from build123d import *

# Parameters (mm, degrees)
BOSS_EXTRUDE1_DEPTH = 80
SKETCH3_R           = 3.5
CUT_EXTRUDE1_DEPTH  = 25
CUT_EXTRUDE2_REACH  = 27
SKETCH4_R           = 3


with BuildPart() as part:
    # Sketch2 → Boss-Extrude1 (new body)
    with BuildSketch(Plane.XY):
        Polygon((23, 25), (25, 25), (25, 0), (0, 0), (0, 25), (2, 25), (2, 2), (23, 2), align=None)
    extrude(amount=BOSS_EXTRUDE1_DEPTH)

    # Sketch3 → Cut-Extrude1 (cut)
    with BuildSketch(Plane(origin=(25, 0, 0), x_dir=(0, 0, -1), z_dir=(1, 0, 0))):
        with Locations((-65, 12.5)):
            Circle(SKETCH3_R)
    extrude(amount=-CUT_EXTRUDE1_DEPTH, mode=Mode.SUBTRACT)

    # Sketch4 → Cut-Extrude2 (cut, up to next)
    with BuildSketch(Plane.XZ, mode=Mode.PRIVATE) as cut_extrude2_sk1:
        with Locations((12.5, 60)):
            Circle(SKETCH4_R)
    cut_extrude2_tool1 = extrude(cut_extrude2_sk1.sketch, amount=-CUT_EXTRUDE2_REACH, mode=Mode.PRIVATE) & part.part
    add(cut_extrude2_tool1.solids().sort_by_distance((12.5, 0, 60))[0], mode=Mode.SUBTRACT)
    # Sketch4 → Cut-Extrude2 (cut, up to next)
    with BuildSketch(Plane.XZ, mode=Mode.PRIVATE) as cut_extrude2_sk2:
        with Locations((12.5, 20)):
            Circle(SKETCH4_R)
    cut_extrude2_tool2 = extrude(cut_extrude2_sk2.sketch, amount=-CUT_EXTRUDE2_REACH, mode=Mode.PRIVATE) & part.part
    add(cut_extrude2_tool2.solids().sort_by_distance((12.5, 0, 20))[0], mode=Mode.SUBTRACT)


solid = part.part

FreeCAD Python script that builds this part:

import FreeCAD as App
import Part
import Sketcher

V = App.Vector
Q = App.Units.Quantity


def add_polygon(sketch, points):
    """Adds a closed chain of lines whose ends are joined by coincident constraints."""
    first, n = sketch.GeometryCount, len(points)
    for a, b in zip(points, points[1:] + points[:1]):
        sketch.addGeometry(Part.LineSegment(App.Vector(*a, 0), App.Vector(*b, 0)), False)
    for i in range(n):
        sketch.addConstraint(Sketcher.Constraint("Coincident", first + i, 2, first + (i + 1) % n, 1))

doc = App.newDocument("Part")
body = doc.addObject("PartDesign::Body", "Body")

# Sketch on XY plane
sketch1 = doc.addObject("Sketcher::SketchObject", "Sketch")
body.addObject(sketch1)
sketch1.AttachmentSupport = (doc.XY_Plane, [""])
sketch1.MapMode = "FlatFace"
add_polygon(sketch1, [(25, 25), (23, 25), (23, 2), (2, 2), (2, 25), (0, 25), (0, 0), (25, 0)])  # lines 0-7
sketch1.addConstraint([
    Sketcher.Constraint("Horizontal", 0),
    Sketcher.Constraint("Vertical", 1),
    Sketcher.Constraint("Horizontal", 2),
    Sketcher.Constraint("Vertical", 3),
    Sketcher.Constraint("Horizontal", 4),
    Sketcher.Constraint("Vertical", 5),
    Sketcher.Constraint("Horizontal", 6),
    Sketcher.Constraint("Vertical", 7),
    Sketcher.Constraint("Coincident", 5, 2, -1, 1),
    Sketcher.Constraint("Horizontal", 0, 2, 3, 2),
    Sketcher.Constraint("Equal", 0, 4),
    Sketcher.Constraint("Equal", 6, 5),
    Sketcher.Constraint("DistanceX", 0, 2, 0, 1, Q("2 mm")),
    Sketcher.Constraint("DistanceX", 2, 2, 2, 1, Q("21 mm")),
    Sketcher.Constraint("DistanceY", 1, 2, 1, 1, Q("23 mm")),
])
pad1 = doc.addObject("PartDesign::Pad", "Pad")
body.addObject(pad1)
pad1.Profile = sketch1
pad1.Length = 80

# Sketch on YZ plane
sketch2 = doc.addObject("Sketcher::SketchObject", "Sketch001")
body.addObject(sketch2)
sketch2.AttachmentSupport = (doc.YZ_Plane, [""])
sketch2.MapMode = "FlatFace"
sketch2.AttachmentOffset = App.Placement(V(0, 0, 25), App.Rotation())
sketch2.addGeometry(Part.Circle(V(12.5, 65, 0), V(0, 0, 1), 3.5), False)
sketch2.addConstraint([
    Sketcher.Constraint("Diameter", 0, Q("7 mm")),
    Sketcher.Constraint("DistanceY", -1, 1, 0, 3, Q("65 mm")),
    Sketcher.Constraint("DistanceX", -1, 1, 0, 3, Q("12.5 mm")),
])
pocket1 = doc.addObject("PartDesign::Pocket", "Pocket")
body.addObject(pocket1)
pocket1.Profile = sketch2
pocket1.Length = 25

# Sketch on XZ plane
sketch3 = doc.addObject("Sketcher::SketchObject", "Sketch002")
body.addObject(sketch3)
sketch3.AttachmentSupport = (doc.XZ_Plane, [""])
sketch3.MapMode = "FlatFace"
sketch3.addGeometry(Part.Circle(V(12.5, 60, 0), V(0, 0, 1), 3), False)
sketch3.addConstraint([
    Sketcher.Constraint("Diameter", 0, Q("6 mm")),
    Sketcher.Constraint("DistanceY", -1, 1, 0, 3, Q("60 mm")),
    Sketcher.Constraint("DistanceX", -1, 1, 0, 3, Q("12.5 mm")),
])
pocket2 = doc.addObject("PartDesign::Pocket", "Pocket001")
body.addObject(pocket2)
pocket2.Profile = sketch3
pocket2.Type = "UpToFirst"

# Sketch on XZ plane
sketch4 = doc.addObject("Sketcher::SketchObject", "Sketch003")
body.addObject(sketch4)
sketch4.AttachmentSupport = (doc.XZ_Plane, [""])
sketch4.MapMode = "FlatFace"
sketch4.addGeometry(Part.Circle(V(12.5, 20, 0), V(0, 0, 1), 3), False)
sketch4.addConstraint([
    Sketcher.Constraint("Diameter", 0, Q("6 mm")),
    Sketcher.Constraint("DistanceY", -1, 1, 0, 3, Q("20 mm")),
    Sketcher.Constraint("DistanceX", -1, 1, 0, 3, Q("12.5 mm")),
])
pocket3 = doc.addObject("PartDesign::Pocket", "Pocket002")
body.addObject(pocket3)
pocket3.Profile = sketch4
pocket3.Type = "UpToFirst"

doc.recompute()
